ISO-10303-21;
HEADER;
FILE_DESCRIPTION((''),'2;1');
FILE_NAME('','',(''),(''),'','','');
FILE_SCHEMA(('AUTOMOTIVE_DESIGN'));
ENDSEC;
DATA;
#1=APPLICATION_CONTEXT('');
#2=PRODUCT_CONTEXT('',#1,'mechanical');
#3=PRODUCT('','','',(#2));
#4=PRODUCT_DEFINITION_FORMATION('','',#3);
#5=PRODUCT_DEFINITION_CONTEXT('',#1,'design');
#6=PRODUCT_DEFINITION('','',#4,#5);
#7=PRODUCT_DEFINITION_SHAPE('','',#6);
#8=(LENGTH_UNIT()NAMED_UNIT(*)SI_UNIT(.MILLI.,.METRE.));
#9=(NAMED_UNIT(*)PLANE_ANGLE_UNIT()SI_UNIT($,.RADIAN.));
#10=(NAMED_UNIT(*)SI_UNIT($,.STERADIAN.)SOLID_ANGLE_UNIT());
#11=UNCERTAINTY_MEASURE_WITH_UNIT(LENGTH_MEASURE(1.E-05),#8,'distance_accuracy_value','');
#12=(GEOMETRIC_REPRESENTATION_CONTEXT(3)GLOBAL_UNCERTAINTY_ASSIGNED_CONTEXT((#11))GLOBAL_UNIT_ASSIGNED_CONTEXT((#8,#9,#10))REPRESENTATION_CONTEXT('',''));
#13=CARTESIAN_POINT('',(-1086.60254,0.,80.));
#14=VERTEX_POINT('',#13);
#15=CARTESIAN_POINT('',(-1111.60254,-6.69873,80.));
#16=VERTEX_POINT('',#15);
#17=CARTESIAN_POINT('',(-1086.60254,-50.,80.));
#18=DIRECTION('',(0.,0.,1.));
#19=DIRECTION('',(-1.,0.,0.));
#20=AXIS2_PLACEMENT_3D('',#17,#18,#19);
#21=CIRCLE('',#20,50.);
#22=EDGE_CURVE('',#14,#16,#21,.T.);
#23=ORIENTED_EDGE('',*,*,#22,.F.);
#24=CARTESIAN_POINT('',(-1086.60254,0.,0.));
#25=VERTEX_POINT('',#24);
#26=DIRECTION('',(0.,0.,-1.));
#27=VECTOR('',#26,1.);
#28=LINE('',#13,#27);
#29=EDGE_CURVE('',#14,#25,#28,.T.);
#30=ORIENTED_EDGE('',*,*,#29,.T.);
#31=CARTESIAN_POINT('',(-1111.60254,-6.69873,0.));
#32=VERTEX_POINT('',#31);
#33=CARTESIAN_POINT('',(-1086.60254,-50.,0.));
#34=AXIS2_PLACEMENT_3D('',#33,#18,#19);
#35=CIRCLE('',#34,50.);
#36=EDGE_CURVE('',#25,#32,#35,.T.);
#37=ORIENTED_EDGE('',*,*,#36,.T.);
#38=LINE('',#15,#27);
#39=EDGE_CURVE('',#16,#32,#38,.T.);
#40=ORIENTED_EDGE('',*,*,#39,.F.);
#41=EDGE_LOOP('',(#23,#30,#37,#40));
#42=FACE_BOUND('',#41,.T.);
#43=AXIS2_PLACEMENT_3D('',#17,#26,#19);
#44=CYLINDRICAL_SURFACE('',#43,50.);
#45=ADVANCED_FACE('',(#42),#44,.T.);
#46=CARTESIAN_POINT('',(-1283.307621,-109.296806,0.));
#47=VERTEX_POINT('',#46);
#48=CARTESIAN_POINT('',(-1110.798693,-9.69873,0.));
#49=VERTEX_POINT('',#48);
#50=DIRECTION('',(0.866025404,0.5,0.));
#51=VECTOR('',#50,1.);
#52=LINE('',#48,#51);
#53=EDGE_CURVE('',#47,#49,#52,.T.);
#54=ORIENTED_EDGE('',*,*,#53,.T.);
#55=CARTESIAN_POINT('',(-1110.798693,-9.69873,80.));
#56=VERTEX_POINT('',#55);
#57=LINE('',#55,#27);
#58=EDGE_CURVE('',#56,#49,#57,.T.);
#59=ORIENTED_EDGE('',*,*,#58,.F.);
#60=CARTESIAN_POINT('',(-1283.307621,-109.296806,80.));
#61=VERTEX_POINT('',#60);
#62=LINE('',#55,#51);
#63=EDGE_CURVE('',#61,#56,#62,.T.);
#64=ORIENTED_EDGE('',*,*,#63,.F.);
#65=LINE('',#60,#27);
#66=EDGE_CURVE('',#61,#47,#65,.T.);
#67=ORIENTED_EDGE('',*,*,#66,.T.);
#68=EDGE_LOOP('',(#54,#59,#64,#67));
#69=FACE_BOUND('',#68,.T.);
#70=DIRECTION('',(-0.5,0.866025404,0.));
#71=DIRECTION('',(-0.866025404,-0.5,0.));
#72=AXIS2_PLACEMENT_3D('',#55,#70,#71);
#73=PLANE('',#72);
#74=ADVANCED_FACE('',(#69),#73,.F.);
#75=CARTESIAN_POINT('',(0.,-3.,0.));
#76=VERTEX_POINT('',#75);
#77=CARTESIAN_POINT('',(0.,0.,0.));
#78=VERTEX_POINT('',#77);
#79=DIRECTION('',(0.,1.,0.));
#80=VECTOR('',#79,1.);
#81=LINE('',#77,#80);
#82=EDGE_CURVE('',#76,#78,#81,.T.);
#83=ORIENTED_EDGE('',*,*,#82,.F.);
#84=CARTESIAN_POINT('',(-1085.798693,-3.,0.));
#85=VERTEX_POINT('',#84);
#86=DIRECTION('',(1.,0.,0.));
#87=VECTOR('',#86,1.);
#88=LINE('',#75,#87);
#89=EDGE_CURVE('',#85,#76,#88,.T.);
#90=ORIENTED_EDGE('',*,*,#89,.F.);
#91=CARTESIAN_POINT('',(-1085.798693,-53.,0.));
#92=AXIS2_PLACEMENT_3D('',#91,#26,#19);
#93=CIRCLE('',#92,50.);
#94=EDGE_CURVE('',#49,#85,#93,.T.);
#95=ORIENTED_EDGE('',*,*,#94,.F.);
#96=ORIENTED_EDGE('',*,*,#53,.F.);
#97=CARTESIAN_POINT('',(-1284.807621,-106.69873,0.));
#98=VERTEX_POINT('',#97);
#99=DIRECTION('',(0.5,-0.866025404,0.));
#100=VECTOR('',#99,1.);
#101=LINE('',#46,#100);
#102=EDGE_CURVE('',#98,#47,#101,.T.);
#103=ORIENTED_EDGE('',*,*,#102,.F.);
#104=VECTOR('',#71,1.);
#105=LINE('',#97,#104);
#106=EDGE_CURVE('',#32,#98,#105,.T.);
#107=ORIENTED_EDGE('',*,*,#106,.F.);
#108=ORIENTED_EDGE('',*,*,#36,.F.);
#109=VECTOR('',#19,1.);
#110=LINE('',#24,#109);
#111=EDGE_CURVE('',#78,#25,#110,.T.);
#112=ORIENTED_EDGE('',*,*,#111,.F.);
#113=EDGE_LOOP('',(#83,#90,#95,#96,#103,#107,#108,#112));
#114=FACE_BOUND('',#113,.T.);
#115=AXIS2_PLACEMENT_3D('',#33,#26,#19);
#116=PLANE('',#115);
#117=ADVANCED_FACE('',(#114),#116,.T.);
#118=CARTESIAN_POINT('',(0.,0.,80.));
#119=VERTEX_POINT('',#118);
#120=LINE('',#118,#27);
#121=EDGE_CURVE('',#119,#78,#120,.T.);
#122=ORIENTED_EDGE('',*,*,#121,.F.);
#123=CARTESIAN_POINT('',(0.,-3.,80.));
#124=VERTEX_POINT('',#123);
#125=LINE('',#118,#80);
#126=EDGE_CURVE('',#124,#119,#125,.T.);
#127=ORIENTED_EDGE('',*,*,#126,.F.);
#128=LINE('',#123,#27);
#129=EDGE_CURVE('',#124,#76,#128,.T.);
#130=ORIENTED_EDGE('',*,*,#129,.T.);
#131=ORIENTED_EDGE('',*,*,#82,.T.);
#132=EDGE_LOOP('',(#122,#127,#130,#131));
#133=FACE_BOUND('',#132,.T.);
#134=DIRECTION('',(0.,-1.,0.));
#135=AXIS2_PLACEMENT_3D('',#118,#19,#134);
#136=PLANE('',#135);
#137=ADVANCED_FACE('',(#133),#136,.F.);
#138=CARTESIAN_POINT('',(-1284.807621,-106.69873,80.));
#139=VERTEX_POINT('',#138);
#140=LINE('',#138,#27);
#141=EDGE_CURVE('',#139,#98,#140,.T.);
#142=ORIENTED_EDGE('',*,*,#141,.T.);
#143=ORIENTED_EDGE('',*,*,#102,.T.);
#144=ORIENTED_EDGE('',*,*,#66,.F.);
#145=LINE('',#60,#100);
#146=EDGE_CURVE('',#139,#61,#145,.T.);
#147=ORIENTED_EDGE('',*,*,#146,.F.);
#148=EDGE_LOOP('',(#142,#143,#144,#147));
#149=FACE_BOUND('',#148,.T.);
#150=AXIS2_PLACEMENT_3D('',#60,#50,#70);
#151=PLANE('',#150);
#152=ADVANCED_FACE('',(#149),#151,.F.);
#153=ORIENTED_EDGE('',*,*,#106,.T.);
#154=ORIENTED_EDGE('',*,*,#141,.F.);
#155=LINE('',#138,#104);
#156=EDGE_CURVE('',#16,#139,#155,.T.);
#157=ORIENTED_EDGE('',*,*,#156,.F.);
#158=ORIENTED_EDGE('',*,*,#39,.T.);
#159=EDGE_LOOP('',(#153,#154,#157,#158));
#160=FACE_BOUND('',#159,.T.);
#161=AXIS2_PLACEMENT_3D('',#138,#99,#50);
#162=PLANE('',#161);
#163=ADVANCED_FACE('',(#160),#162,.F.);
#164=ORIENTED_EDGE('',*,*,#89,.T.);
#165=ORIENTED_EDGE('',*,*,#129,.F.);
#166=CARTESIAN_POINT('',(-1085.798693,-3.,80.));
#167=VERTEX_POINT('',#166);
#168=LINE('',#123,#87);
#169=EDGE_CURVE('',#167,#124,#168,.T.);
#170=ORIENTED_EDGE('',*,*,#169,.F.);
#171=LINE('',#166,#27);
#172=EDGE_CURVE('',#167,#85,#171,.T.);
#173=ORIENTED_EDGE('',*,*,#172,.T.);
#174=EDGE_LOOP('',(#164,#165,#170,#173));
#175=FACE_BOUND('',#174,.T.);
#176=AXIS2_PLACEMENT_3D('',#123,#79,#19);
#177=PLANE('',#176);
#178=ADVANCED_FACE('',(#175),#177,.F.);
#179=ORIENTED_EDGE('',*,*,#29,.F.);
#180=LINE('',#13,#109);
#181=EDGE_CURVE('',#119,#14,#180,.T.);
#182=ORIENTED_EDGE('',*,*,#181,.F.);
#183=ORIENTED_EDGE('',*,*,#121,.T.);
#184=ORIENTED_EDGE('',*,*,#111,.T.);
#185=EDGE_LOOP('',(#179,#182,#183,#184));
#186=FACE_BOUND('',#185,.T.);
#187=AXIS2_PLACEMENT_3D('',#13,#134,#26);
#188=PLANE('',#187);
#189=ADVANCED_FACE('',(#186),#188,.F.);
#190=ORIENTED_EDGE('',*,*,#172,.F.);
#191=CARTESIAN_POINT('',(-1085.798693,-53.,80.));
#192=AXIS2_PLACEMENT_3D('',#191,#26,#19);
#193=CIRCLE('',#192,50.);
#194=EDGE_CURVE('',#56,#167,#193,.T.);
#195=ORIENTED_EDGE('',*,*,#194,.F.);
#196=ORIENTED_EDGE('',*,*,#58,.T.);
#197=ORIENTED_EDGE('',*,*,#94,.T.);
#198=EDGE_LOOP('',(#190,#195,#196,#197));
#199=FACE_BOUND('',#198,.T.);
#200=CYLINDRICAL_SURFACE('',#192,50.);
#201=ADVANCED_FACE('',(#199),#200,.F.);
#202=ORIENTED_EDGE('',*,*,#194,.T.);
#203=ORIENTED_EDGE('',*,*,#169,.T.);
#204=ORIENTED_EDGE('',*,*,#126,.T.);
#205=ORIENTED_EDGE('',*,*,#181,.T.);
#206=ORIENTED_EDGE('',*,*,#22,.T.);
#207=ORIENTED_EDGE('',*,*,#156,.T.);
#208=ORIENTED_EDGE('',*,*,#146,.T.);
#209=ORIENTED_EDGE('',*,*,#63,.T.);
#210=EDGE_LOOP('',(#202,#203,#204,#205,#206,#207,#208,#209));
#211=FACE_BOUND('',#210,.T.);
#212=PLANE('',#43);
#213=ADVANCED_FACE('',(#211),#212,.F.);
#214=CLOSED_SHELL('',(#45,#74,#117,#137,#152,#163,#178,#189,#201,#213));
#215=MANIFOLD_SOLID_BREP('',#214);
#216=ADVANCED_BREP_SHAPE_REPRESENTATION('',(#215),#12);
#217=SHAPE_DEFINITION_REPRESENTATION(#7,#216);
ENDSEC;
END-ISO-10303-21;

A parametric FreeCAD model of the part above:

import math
import FreeCAD as App
import Part
import Sketcher

V = App.Vector
Q = App.Units.Quantity

doc = App.newDocument("Part")
body = doc.addObject("PartDesign::Body", "Body")

sketch1 = body.newObject("Sketcher::SketchObject", "Sketch")
sketch1.AttachmentSupport = (doc.getObject("XY_Plane"), [""])
sketch1.MapMode = "FlatFace"
sketch1.addGeometry([
    Part.LineSegment(V(-1111.6, -6.7, 0), V(-1284.8, -106.7, 0)),
    Part.LineSegment(V(-1284.8, -106.7, 0), V(-1283.3, -109.3, 0)),
    Part.LineSegment(V(-1283.3, -109.3, 0), V(-1110.8, -9.7, 0)),
    Part.ArcOfCircle(Part.Circle(V(-1085.8, -53, 0), V(0, 0, 1), 50), math.radians(90), math.radians(120)),
    Part.LineSegment(V(-1085.8, -3, 0), V(0, -3, 0)),
    Part.LineSegment(V(0, -3, 0), V(0, 0, 0)),
    Part.LineSegment(V(0, 0, 0), V(-1086.6, 0, 0)),
    Part.ArcOfCircle(Part.Circle(V(-1086.6, -50, 0), V(0, 0, 1), 50), math.radians(90), math.radians(120)),
], False)
sketch1.addConstraint([
    Sketcher.Constraint("Coincident", 0, 2, 1, 1),
    Sketcher.Constraint("Coincident", 1, 2, 2, 1),
    Sketcher.Constraint("Tangent", 2, 2, 3, 2),
    Sketcher.Constraint("Tangent", 3, 1, 4, 1),
    Sketcher.Constraint("Coincident", 4, 2, 5, 1),
    Sketcher.Constraint("Coincident", 5, 2, 6, 1),
    Sketcher.Constraint("Tangent", 6, 2, 7, 1),
    Sketcher.Constraint("Tangent", 7, 2, 0, 1),
    Sketcher.Constraint("Horizontal", 4),
    Sketcher.Constraint("Vertical", 5),
    Sketcher.Constraint("Horizontal", 6),
    Sketcher.Constraint("Coincident", 5, 2, -1, 1),
    Sketcher.Constraint("Equal", 3, 7),
    Sketcher.Constraint("Perpendicular", 0, 1),
    Sketcher.Constraint("Perpendicular", 1, 2),
    Sketcher.Constraint("Radius", 3, 50.0),
    Sketcher.Constraint("DistanceY", 5, 1, 5, 2, 3.0),
    Sketcher.Constraint("Angle", 0, Q("-150 deg")),
    Sketcher.Constraint("Distance", 0, 200.0),
    Sketcher.Constraint("Distance", 1, 3.0),
    Sketcher.Constraint("DistanceX", 6, 2, 6, 1, 1086.60254),
])
pad1 = body.newObject("PartDesign::Pad", "Pad")
pad1.Profile = sketch1
pad1.Length = 80

doc.recompute()
